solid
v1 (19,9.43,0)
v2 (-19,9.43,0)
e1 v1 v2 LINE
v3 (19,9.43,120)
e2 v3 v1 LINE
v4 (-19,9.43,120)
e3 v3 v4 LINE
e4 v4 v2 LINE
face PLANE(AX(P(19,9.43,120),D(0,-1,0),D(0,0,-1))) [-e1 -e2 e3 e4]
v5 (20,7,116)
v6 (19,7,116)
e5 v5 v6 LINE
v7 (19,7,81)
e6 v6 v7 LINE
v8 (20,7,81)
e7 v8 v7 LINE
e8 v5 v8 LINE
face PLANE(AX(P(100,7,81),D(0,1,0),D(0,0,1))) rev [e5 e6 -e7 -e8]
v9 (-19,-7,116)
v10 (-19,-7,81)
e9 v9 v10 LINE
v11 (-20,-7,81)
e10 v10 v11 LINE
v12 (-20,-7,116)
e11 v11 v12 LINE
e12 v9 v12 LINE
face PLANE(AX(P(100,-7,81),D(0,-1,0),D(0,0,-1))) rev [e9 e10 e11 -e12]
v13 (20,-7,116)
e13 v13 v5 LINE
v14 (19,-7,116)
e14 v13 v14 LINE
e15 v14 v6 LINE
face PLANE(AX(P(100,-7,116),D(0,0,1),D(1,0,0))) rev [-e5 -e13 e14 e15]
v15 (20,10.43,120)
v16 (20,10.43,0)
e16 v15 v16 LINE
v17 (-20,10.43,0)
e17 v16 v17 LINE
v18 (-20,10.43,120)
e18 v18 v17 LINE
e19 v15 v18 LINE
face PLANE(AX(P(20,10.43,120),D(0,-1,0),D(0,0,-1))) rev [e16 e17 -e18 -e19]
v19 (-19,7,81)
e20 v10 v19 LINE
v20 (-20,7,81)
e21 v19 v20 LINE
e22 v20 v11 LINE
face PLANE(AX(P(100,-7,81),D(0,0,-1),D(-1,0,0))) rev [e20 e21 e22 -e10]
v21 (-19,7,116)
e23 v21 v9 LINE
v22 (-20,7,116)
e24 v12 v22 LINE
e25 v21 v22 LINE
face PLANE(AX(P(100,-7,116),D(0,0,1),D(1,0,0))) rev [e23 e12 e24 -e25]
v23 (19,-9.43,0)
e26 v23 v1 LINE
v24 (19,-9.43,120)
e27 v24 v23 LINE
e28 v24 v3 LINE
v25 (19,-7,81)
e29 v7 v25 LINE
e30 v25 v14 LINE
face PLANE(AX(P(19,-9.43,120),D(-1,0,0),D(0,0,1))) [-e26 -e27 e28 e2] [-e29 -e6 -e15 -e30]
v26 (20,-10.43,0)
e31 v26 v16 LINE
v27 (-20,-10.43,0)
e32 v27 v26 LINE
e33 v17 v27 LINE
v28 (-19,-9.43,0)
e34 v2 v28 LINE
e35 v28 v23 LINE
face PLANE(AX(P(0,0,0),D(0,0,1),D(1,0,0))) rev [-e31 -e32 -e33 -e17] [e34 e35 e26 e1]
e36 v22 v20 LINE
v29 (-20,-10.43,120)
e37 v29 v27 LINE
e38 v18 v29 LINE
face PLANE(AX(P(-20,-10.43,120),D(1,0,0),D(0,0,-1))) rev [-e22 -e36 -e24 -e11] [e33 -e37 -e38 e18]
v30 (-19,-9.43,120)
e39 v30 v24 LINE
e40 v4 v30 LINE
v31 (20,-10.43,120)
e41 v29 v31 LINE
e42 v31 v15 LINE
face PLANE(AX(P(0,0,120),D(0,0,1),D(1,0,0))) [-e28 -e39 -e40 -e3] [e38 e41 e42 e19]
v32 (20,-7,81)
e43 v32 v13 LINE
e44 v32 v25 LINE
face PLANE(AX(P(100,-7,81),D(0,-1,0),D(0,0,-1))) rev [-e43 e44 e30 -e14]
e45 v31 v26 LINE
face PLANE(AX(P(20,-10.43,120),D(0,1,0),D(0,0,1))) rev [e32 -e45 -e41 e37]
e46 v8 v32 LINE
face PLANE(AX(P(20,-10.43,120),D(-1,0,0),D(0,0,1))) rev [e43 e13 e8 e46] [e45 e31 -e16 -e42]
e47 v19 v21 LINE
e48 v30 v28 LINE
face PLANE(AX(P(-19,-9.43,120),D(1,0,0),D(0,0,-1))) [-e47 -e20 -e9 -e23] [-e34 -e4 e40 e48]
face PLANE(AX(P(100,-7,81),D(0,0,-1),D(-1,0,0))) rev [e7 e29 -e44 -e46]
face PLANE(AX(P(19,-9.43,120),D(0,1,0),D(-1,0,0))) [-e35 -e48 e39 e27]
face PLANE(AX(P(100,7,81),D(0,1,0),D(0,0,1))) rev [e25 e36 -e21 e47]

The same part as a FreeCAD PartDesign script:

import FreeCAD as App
import Part
import Sketcher


def add_polygon(sketch, points):
    """Adds a closed chain of lines whose ends are joined by coincident constraints."""
    first, n = sketch.GeometryCount, len(points)
    for a, b in zip(points, points[1:] + points[:1]):
        sketch.addGeometry(Part.LineSegment(App.Vector(*a, 0), App.Vector(*b, 0)), False)
    for i in range(n):
        sketch.addConstraint(Sketcher.Constraint("Coincident", first + i, 2, first + (i + 1) % n, 1))

doc = App.newDocument("Part")
body = doc.addObject("PartDesign::Body", "Body")

# Sketch on XY plane
sketch1 = body.newObject("Sketcher::SketchObject", "Sketch")
sketch1.AttachmentSupport = (doc.getObject("XY_Plane"), [""])
sketch1.MapMode = "FlatFace"
add_polygon(sketch1, [(-20, 10), (-20, -10), (20, -10), (20, 10)])  # lines 0-3
add_polygon(sketch1, [(19, -9), (-19, -9), (-19, 9), (19, 9)])  # lines 4-7
sketch1.addConstraint(Sketcher.Constraint("Vertical", 0))
sketch1.addConstraint(Sketcher.Constraint("Horizontal", 1))
sketch1.addConstraint(Sketcher.Constraint("Vertical", 2))
sketch1.addConstraint(Sketcher.Constraint("Horizontal", 3))
sketch1.addConstraint(Sketcher.Constraint("Horizontal", 4))
sketch1.addConstraint(Sketcher.Constraint("Vertical", 5))
sketch1.addConstraint(Sketcher.Constraint("Horizontal", 6))
sketch1.addConstraint(Sketcher.Constraint("Vertical", 7))
sketch1.addConstraint(Sketcher.Constraint("Symmetric", 0, 2, 2, 2, -1, 1))
sketch1.addConstraint(Sketcher.Constraint("Symmetric", 4, 2, 6, 2, -1, 1))
sketch1.addConstraint(Sketcher.Constraint("DistanceX", 1, 1, 1, 2, 40.0))
sketch1.addConstraint(Sketcher.Constraint("DistanceX", 4, 2, 4, 1, 38.0))
sketch1.addConstraint(Sketcher.Constraint("DistanceY", 0, 2, 4, 2, 1.0))
sketch1.addConstraint(Sketcher.Constraint("DistanceY", 0, 2, 0, 1, 20.86))
pad1 = body.newObject("PartDesign::Pad", "Pad")
pad1.Profile = sketch1
pad1.Length = 120

# Sketch on YZ plane
sketch2 = body.newObject("Sketcher::SketchObject", "Sketch001")
sketch2.AttachmentSupport = (doc.getObject("YZ_Plane"), [""])
sketch2.MapMode = "FlatFace"
sketch2.AttachmentOffset = App.Placement(App.Vector(0, 0, -20), App.Rotation())
add_polygon(sketch2, [(7, 81), (-7, 81), (-7, 116), (7, 116)])  # lines 0-3
sketch2.addConstraint(Sketcher.Constraint("Horizontal", 0))
sketch2.addConstraint(Sketcher.Constraint("Vertical", 1))
sketch2.addConstraint(Sketcher.Constraint("Horizontal", 2))
sketch2.addConstraint(Sketcher.Constraint("Vertical", 3))
sketch2.addConstraint(Sketcher.Constraint("DistanceX", 0, 2, 0, 1, 14.0))
sketch2.addConstraint(Sketcher.Constraint("DistanceY", 1, 1, 1, 2, 35.0))
sketch2.addConstraint(Sketcher.Constraint("DistanceX", 0, 2, -1, 1, 7.0))
sketch2.addConstraint(Sketcher.Constraint("DistanceY", -1, 1, 0, 2, 81.0))
pocket1 = body.newObject("PartDesign::Pocket", "Pocket")
pocket1.Profile = sketch2
pocket1.Length = 120
pocket1.Reversed = True

doc.recompute()
